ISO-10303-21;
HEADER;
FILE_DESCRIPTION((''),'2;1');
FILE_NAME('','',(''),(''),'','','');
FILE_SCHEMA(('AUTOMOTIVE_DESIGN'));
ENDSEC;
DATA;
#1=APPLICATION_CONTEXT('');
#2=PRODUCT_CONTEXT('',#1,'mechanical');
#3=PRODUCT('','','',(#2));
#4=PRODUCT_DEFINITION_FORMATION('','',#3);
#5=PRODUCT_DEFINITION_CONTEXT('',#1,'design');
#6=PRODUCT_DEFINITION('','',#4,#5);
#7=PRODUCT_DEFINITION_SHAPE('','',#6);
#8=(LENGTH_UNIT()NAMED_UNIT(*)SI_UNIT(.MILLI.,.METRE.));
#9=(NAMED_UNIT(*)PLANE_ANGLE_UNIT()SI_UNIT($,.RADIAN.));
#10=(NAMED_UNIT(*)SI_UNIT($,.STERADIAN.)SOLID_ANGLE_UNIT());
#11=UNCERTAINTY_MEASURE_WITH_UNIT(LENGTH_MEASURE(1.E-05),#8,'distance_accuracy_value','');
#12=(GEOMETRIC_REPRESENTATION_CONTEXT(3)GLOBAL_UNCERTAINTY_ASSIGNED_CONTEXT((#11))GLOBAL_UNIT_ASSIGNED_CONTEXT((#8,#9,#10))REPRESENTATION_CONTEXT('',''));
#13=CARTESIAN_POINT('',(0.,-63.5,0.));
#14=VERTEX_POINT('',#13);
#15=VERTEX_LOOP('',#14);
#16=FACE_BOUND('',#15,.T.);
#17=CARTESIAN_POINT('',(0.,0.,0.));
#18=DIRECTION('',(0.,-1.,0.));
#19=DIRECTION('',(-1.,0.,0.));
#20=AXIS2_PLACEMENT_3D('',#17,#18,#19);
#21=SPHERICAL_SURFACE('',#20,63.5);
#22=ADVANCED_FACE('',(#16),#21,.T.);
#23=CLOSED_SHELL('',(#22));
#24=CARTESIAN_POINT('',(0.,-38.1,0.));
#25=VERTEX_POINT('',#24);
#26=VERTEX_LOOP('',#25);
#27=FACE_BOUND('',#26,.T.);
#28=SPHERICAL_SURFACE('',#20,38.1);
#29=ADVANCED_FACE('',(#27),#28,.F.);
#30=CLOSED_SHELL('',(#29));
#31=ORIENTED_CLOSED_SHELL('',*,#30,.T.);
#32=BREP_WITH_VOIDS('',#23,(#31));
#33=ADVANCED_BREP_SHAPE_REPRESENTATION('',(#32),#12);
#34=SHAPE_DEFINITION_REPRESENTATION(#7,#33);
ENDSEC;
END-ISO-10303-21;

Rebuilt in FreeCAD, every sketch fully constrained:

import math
import FreeCAD as App
import Part
import Sketcher
from FreeCAD import Vector
Q = App.Units.Quantity

doc = App.newDocument("Part")
body = doc.addObject("PartDesign::Body", "Body")

# Sketch on XY plane
sketch1 = body.newObject("Sketcher::SketchObject", "Sketch")
sketch1.AttachmentSupport = (doc.getObject("XY_Plane"), [""])
sketch1.MapMode = "FlatFace"
sketch1.addGeometry([
    Part.ArcOfCircle(Part.Circle(Vector(0, 0, 0), Vector(0, 0, 1), 38.1), math.radians(-90), math.radians(90)),
    Part.LineSegment(Vector(0, -38.1, 0), Vector(0, -63.5, 0)),
    Part.ArcOfCircle(Part.Circle(Vector(0, 0, 0), Vector(0, 0, 1), 63.5), math.radians(-90), math.radians(90)),
    Part.LineSegment(Vector(0, 63.5, 0), Vector(0, 38.1, 0)),
], False)
sketch1.addConstraint([
    Sketcher.Constraint("Coincident", 0, 1, 1, 1),
    Sketcher.Constraint("Coincident", 1, 2, 2, 1),
    Sketcher.Constraint("Coincident", 2, 2, 3, 1),
    Sketcher.Constraint("Coincident", 3, 2, 0, 2),
    Sketcher.Constraint("Vertical", 1),
    Sketcher.Constraint("Vertical", 3),
    Sketcher.Constraint("Coincident", 0, 3, -1, 1),
    Sketcher.Constraint("Coincident", 2, 3, -1, 1),
    Sketcher.Constraint("PointOnObject", 0, 1, -2),
    Sketcher.Constraint("PointOnObject", 2, 2, -2),
    Sketcher.Constraint("Radius", 0, Q("1.5 in")),
    Sketcher.Constraint("Radius", 2, Q("2.5 in")),
])
revolution = body.newObject("PartDesign::Revolution", "Revolution")
revolution.Profile = sketch1
revolution.ReferenceAxis = (sketch1, ["V_Axis"])
revolution.Angle = 360

doc.recompute()
